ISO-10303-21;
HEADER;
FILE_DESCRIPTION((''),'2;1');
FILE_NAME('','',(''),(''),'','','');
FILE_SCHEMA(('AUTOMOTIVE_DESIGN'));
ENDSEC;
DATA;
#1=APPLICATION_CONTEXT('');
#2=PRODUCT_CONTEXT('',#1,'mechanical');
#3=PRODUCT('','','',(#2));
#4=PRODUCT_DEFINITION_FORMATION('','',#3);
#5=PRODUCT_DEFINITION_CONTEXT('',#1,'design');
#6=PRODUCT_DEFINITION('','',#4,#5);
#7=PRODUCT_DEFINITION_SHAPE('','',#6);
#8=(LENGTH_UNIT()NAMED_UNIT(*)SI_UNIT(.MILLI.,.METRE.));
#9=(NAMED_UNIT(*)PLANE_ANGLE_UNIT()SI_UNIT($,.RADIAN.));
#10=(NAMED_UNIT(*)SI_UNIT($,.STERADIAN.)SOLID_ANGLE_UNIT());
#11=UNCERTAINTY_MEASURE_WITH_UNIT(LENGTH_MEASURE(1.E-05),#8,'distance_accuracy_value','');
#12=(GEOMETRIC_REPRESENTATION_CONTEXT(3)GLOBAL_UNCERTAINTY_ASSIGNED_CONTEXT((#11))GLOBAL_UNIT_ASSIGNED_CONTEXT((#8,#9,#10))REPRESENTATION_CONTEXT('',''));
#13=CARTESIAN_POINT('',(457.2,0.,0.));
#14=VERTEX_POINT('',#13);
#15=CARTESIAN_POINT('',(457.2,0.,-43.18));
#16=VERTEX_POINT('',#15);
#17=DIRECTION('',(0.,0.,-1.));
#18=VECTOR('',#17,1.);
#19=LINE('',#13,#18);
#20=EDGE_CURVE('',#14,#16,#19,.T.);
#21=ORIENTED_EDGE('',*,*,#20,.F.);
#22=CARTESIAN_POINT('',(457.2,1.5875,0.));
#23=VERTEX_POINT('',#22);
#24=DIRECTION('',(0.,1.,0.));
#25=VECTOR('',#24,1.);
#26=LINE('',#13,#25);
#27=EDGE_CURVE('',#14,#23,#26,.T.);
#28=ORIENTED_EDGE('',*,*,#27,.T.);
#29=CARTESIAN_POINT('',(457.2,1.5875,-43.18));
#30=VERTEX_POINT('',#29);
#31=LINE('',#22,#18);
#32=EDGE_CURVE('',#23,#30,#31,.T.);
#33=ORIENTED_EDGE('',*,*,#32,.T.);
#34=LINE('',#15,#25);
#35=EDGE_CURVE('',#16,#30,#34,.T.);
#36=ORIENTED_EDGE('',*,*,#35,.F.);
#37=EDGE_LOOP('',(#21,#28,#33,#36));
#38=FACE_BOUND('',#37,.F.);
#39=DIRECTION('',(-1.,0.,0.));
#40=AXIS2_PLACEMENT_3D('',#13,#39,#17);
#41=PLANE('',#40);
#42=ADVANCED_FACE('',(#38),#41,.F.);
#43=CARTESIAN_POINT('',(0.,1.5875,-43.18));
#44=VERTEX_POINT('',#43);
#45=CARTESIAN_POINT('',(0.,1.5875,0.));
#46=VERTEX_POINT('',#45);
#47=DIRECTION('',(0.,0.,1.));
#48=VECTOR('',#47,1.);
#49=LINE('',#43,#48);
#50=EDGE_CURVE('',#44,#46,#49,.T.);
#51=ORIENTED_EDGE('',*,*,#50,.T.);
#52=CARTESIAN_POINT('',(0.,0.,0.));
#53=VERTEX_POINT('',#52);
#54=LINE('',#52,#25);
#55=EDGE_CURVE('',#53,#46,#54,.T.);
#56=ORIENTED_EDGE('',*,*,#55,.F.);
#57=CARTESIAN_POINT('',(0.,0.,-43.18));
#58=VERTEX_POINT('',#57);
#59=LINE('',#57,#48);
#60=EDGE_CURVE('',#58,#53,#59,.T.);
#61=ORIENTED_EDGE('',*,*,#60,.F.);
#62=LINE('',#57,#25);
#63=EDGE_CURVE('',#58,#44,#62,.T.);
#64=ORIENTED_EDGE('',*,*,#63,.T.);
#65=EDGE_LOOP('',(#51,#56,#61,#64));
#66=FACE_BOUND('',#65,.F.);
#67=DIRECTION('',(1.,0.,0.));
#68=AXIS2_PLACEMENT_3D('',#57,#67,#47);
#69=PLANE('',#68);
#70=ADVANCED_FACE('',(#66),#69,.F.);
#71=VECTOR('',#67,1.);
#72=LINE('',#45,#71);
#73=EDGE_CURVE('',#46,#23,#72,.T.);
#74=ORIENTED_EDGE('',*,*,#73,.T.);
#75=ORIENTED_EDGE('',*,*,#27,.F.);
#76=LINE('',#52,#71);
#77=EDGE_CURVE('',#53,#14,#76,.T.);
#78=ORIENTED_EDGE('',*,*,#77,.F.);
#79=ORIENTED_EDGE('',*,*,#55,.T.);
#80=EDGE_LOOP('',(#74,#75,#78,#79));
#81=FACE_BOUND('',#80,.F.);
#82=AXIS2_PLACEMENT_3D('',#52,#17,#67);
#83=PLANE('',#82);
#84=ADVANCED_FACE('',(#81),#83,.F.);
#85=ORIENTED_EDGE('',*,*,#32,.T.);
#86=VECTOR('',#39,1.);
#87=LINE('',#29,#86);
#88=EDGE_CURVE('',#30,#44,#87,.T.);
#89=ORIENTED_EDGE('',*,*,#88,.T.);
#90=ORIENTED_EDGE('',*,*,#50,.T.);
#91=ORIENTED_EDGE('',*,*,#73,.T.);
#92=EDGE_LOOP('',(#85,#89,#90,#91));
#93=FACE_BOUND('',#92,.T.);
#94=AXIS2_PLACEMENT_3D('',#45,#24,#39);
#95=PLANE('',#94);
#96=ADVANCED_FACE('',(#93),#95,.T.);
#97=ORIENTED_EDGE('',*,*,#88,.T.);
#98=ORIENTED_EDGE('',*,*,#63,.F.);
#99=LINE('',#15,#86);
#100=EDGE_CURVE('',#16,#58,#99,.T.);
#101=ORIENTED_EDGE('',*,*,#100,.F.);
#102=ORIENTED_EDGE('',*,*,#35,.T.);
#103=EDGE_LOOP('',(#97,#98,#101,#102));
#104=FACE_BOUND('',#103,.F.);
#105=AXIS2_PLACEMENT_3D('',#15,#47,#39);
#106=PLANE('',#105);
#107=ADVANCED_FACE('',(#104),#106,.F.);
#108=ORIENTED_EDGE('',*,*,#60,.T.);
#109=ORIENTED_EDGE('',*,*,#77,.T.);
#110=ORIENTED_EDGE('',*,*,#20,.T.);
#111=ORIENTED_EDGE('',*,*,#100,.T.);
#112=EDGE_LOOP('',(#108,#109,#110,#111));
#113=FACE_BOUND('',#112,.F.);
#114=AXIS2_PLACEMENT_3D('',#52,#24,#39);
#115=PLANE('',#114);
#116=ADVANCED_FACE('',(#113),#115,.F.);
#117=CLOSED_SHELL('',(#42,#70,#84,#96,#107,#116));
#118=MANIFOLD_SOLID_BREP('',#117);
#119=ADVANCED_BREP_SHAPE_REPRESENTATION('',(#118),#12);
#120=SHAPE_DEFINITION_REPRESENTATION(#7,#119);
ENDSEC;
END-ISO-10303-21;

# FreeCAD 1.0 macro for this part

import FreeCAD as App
import Part
import Sketcher
from FreeCAD import Vector
Q = App.Units.Quantity


def add_polygon(sketch, points):
    """Adds a closed chain of lines whose ends are joined by coincident constraints."""
    first, n = sketch.GeometryCount, len(points)
    for a, b in zip(points, points[1:] + points[:1]):
        sketch.addGeometry(Part.LineSegment(App.Vector(*a, 0), App.Vector(*b, 0)), False)
    for i in range(n):
        sketch.addConstraint(Sketcher.Constraint("Coincident", first + i, 2, first + (i + 1) % n, 1))

doc = App.newDocument("Part")
body = doc.addObject("PartDesign::Body", "Body")

# Sketch on XZ plane
sketch1 = body.newObject("Sketcher::SketchObject", "Sketch")
sketch1.AttachmentSupport = (doc.getObject("XZ_Plane"), [""])
sketch1.MapMode = "FlatFace"
add_polygon(sketch1, [(0, -43), (0, 0), (457, 0), (457, -43)])  # lines 0-3
sketch1.addConstraint([
    Sketcher.Constraint("Vertical", 0),
    Sketcher.Constraint("Horizontal", 1),
    Sketcher.Constraint("Vertical", 2),
    Sketcher.Constraint("Horizontal", 3),
    Sketcher.Constraint("Coincident", 0, 2, -1, 1),
    Sketcher.Constraint("DistanceX", 1, 1, 1, 2, Q("18 in")),
    Sketcher.Constraint("DistanceY", 0, 1, 0, 2, Q("1.7 in")),
])
pad1 = body.newObject("PartDesign::Pad", "Pad")
pad1.Profile = sketch1
pad1.Length = Q("0.0625 in")
pad1.Reversed = True

doc.recompute()
